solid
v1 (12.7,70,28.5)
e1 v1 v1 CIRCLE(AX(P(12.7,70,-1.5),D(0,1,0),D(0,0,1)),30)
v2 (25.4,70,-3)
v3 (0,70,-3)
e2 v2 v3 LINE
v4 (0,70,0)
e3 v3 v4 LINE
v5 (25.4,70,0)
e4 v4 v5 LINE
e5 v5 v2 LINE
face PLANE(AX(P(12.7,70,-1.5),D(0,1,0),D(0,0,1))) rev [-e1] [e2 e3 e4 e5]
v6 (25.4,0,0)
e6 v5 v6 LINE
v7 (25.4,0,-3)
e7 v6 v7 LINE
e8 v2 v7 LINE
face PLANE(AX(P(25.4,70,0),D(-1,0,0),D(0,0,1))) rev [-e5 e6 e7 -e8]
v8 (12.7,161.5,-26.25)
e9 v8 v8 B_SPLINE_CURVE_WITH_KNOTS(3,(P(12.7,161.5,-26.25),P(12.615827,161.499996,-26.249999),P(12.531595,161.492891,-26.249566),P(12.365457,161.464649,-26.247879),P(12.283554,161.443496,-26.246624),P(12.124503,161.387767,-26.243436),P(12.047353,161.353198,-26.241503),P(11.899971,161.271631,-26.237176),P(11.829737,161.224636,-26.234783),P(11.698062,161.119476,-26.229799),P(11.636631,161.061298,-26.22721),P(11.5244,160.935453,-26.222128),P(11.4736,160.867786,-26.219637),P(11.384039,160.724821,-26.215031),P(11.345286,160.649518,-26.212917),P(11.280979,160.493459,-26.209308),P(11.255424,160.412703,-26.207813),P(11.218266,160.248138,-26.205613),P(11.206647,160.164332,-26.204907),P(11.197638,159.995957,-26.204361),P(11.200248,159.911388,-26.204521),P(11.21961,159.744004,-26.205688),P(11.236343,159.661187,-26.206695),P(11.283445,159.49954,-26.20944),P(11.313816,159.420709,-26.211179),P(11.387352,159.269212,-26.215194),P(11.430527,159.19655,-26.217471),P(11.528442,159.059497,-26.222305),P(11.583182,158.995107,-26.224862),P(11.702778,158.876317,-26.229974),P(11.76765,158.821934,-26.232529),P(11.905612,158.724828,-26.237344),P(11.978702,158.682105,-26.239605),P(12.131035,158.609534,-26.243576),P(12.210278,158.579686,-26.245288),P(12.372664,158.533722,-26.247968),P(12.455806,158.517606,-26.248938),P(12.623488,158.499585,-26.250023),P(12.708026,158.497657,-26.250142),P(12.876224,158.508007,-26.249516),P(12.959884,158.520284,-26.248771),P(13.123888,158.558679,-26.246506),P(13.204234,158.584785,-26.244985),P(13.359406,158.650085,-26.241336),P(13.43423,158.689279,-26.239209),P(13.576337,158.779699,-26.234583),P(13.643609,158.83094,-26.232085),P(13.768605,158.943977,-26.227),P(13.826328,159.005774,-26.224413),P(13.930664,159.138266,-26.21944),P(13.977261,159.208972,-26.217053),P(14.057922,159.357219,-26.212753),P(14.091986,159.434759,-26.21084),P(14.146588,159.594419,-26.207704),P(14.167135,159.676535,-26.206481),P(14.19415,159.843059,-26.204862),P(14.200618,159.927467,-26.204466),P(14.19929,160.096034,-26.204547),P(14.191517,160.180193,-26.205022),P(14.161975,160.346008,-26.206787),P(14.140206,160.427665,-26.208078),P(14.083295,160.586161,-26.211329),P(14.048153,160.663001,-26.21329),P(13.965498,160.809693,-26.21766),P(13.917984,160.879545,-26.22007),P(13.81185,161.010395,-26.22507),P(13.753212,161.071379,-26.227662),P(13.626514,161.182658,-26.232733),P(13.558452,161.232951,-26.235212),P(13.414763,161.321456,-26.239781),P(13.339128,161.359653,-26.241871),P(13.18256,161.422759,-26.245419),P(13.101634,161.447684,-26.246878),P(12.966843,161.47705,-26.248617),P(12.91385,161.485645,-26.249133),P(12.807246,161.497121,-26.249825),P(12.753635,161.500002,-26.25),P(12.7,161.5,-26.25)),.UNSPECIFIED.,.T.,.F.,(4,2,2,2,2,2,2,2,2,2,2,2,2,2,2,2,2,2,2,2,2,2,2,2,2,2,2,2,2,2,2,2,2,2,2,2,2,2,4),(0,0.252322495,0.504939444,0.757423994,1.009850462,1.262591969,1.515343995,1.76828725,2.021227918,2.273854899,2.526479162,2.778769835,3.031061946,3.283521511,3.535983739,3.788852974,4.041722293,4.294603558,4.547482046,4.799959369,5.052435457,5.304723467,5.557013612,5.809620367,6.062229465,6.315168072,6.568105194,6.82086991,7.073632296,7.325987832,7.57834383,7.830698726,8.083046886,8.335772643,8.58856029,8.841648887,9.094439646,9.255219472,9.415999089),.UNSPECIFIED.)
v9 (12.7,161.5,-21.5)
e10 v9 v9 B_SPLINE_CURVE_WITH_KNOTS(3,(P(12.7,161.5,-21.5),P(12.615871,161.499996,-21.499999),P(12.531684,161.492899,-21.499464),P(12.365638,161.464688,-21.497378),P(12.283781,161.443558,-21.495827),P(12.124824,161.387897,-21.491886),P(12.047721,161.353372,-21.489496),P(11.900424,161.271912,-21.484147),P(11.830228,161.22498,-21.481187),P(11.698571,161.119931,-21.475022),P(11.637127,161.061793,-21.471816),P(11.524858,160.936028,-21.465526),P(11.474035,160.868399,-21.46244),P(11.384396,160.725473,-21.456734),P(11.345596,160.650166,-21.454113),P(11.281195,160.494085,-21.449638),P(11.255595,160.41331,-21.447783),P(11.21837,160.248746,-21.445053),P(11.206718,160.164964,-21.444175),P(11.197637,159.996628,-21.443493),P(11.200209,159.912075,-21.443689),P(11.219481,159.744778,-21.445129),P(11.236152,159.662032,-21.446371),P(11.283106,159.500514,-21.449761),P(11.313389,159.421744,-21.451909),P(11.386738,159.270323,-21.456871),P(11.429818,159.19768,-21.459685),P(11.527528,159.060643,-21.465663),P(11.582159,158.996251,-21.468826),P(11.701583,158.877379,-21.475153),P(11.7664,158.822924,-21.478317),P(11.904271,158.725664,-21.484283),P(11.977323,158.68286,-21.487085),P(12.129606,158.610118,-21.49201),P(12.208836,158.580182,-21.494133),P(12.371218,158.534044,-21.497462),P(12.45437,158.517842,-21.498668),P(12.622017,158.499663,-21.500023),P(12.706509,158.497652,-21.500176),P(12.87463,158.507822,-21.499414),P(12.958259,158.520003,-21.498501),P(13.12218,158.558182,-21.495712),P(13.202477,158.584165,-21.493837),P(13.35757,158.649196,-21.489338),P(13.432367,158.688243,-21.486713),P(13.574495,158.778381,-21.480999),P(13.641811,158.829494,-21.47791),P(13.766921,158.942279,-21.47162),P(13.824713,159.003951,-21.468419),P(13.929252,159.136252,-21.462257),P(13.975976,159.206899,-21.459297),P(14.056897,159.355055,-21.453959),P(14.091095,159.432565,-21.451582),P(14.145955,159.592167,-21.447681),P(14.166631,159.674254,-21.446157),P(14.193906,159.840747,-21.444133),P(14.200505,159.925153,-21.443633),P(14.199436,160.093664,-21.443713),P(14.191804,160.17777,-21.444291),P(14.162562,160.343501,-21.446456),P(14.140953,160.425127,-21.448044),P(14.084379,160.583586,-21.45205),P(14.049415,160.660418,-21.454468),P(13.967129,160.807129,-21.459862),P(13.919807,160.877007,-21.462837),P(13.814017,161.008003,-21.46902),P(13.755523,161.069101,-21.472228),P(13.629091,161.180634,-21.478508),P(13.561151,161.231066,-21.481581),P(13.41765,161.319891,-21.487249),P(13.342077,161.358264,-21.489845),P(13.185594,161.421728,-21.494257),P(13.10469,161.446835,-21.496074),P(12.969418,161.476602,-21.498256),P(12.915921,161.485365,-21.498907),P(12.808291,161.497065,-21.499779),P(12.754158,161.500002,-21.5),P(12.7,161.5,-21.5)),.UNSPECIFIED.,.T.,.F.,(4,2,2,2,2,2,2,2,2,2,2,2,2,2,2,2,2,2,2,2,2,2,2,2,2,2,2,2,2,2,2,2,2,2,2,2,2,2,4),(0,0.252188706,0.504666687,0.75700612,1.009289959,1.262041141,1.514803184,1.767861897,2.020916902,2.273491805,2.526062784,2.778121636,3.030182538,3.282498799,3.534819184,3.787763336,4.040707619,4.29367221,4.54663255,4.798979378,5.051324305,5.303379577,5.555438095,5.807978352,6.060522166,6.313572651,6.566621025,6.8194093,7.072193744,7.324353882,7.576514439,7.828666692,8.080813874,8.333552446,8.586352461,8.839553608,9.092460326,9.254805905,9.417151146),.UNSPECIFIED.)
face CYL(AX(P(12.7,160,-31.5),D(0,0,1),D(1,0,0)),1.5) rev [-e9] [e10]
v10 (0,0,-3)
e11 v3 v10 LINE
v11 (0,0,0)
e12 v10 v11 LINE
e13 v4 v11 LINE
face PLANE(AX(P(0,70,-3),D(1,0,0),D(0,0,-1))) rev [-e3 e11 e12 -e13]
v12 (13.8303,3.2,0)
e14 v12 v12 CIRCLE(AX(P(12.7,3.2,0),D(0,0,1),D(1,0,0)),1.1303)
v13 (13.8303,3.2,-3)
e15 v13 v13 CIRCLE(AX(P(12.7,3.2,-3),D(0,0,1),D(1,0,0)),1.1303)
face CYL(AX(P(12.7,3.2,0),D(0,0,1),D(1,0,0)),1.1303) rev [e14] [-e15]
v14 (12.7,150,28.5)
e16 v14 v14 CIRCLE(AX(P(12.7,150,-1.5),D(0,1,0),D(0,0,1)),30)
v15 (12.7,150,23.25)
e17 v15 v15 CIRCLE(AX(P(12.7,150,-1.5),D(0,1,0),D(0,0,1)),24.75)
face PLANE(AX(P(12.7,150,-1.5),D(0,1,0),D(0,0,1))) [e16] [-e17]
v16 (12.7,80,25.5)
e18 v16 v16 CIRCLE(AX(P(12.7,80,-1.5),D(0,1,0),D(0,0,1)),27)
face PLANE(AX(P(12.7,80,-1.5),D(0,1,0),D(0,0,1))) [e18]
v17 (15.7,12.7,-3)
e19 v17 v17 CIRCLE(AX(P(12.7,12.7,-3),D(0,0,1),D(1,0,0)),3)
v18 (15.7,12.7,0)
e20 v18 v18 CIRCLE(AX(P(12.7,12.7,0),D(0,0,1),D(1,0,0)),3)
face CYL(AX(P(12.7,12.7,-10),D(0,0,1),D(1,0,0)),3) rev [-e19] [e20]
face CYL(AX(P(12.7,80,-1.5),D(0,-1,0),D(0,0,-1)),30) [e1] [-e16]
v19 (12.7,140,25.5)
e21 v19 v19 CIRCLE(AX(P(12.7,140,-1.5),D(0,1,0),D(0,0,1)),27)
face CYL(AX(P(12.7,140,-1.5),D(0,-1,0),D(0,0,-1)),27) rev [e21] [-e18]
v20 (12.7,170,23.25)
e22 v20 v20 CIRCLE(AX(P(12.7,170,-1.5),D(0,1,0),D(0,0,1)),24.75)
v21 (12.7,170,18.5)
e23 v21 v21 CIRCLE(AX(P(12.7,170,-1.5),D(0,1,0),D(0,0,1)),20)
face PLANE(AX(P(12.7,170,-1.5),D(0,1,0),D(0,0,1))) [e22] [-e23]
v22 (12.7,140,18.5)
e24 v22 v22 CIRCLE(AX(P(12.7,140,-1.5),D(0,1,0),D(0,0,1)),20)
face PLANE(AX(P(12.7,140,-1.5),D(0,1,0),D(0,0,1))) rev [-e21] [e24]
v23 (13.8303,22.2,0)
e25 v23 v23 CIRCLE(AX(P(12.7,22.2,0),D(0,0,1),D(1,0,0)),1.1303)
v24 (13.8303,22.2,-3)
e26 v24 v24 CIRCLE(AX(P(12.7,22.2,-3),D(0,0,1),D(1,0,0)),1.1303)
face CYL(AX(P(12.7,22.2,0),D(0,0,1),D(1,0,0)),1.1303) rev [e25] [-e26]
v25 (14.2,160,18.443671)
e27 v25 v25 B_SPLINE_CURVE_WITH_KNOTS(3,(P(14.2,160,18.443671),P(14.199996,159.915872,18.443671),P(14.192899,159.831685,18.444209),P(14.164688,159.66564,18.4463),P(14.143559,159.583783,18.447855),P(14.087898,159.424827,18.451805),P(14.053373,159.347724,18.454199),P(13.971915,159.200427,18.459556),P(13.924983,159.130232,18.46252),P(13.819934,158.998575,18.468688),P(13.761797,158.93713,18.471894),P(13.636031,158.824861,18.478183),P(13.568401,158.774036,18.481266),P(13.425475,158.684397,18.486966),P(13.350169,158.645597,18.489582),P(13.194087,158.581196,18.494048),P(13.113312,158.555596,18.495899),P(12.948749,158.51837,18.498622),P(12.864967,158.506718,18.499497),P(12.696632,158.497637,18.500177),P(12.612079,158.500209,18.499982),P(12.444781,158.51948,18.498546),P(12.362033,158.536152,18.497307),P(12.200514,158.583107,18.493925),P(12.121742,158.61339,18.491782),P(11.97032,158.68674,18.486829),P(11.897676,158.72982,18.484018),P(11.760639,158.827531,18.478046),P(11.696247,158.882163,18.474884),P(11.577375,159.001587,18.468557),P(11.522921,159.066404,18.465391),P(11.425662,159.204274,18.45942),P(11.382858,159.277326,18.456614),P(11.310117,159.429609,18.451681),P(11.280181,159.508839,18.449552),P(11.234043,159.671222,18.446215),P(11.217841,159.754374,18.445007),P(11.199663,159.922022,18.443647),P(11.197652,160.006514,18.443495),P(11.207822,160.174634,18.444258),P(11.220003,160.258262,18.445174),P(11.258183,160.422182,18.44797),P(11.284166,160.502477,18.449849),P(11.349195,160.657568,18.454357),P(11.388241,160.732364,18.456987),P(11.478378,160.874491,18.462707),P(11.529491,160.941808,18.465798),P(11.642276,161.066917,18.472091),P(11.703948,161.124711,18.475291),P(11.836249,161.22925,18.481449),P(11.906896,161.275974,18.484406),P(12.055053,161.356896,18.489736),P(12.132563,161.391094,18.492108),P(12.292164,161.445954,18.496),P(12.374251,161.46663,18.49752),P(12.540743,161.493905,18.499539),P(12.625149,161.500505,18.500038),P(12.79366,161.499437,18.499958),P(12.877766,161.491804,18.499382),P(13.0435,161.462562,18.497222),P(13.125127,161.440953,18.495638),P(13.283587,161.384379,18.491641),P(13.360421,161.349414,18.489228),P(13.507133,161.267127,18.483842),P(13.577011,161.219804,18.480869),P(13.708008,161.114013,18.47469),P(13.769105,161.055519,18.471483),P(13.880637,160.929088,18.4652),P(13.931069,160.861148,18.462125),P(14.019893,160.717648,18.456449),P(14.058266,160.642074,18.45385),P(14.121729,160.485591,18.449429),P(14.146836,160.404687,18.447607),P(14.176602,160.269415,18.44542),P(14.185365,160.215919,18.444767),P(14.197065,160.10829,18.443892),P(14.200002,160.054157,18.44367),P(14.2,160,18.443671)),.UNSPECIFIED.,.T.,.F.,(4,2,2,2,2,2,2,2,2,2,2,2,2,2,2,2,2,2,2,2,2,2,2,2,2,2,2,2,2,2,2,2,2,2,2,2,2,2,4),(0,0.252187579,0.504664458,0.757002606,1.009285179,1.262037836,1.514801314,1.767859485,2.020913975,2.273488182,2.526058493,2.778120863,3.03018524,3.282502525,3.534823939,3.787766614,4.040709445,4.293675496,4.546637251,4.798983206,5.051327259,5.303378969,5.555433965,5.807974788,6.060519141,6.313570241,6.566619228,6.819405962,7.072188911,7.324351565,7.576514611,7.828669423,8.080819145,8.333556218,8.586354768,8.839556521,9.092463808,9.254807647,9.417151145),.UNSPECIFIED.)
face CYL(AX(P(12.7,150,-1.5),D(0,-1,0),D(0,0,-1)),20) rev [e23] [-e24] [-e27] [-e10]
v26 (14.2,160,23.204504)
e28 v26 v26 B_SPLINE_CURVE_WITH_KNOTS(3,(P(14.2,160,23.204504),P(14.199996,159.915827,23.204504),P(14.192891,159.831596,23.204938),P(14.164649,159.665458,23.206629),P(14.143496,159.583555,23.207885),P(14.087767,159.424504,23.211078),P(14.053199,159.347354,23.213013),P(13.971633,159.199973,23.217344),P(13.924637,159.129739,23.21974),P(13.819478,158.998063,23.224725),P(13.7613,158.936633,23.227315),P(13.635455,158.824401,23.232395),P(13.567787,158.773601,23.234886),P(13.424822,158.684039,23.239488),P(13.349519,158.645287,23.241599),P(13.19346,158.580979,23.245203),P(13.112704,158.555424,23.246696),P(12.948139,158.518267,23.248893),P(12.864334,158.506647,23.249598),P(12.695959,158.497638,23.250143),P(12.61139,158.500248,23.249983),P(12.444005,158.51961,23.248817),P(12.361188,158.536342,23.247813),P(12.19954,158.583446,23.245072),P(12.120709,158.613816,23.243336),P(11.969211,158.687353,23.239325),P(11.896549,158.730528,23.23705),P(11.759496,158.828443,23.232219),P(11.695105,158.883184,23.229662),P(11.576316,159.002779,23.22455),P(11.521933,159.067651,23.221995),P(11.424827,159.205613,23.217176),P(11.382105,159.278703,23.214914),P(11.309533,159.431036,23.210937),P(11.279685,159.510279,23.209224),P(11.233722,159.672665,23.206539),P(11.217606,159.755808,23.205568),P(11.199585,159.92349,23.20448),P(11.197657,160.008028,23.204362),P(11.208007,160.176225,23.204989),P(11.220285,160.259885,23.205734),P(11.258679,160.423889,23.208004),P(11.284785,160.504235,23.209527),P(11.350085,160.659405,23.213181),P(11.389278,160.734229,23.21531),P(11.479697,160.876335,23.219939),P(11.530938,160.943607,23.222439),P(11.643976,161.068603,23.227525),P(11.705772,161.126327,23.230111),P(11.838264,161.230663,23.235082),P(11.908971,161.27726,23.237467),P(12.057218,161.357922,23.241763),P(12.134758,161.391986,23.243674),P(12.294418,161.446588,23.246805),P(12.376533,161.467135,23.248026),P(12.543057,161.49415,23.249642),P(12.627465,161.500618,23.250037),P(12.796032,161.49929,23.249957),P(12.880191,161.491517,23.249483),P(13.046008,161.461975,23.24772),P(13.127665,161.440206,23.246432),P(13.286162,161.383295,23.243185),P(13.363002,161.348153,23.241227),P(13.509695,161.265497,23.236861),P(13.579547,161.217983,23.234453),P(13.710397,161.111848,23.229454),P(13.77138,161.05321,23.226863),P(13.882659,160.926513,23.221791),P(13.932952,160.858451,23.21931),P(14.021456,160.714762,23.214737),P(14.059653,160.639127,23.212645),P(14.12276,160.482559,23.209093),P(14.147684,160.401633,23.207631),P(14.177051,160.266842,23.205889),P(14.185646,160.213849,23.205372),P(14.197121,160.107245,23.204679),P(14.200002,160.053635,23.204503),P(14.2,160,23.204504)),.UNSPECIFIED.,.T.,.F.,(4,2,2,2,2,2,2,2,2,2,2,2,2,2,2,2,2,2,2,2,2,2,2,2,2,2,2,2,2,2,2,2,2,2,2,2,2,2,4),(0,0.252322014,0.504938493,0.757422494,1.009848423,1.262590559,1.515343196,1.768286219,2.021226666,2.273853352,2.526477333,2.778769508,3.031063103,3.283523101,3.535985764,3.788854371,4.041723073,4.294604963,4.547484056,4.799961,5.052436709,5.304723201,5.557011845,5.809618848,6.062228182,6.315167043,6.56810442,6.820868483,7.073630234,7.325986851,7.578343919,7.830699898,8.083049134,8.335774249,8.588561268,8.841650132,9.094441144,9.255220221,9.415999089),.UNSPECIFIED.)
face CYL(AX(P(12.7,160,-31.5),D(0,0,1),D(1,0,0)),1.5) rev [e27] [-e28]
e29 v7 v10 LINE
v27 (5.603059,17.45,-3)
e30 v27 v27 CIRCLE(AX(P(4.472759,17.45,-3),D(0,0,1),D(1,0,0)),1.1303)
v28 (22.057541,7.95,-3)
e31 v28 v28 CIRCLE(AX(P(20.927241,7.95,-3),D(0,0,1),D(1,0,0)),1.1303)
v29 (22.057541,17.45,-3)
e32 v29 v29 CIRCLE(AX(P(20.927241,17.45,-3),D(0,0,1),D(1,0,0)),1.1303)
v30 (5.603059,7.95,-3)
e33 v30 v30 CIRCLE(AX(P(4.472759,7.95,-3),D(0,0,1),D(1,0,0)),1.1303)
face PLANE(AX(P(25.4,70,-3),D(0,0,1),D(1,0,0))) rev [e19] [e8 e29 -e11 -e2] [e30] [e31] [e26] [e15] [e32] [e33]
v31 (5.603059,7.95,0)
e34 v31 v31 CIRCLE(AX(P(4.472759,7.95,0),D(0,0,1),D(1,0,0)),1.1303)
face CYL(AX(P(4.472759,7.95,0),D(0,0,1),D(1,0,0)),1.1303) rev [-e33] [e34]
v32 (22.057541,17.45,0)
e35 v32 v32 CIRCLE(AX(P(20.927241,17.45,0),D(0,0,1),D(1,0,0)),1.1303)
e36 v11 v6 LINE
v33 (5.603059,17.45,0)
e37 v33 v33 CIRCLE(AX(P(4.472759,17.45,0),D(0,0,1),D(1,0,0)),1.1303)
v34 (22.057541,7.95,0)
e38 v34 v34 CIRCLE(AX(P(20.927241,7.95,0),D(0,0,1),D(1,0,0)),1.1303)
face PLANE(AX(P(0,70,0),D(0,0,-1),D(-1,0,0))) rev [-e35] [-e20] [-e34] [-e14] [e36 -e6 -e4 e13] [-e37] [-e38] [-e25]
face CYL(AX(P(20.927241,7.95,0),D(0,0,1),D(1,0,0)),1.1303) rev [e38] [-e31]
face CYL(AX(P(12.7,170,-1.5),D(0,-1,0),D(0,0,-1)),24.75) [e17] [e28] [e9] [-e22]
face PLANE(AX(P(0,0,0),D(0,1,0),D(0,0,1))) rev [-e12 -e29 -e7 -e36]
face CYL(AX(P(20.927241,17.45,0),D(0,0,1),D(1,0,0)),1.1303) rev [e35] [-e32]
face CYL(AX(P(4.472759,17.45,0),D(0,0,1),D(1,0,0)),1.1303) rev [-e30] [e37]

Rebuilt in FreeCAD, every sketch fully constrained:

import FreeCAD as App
import Part
import Sketcher
from FreeCAD import Vector

doc = App.newDocument("Part")
body = doc.addObject("PartDesign::Body", "Body")

sketch1 = body.newObject("Sketcher::SketchObject", "Sketch")
sketch1.AttachmentSupport = (doc.getObject("XZ_Plane"), [""])
sketch1.MapMode = "FlatFace"
sketch1.addGeometry([
    Part.LineSegment(Vector(0, -3, 0), Vector(0, 0, 0)),
    Part.LineSegment(Vector(0, 0, 0), Vector(25.4, 0, 0)),
    Part.LineSegment(Vector(25.4, 0, 0), Vector(25.4, -3, 0)),
    Part.LineSegment(Vector(25.4, -3, 0), Vector(0, -3, 0)),
], False)
sketch1.addConstraint([
    Sketcher.Constraint("Coincident", 0, 2, 1, 1),
    Sketcher.Constraint("Coincident", 1, 2, 2, 1),
    Sketcher.Constraint("Coincident", 2, 2, 3, 1),
    Sketcher.Constraint("Coincident", 3, 2, 0, 1),
    Sketcher.Constraint("Vertical", 0),
    Sketcher.Constraint("Horizontal", 1),
    Sketcher.Constraint("Vertical", 2),
    Sketcher.Constraint("Horizontal", 3),
    Sketcher.Constraint("Coincident", 0, 2, -1, 1),
    Sketcher.Constraint("DistanceY", 0, 1, 0, 2, 3.0),
    Sketcher.Constraint("DistanceX", 1, 1, 1, 2, 25.4),
])
pad1 = body.newObject("PartDesign::Pad", "Pad")
pad1.Profile = sketch1
pad1.Length = 70
pad1.Reversed = True

sketch2 = body.newObject("Sketcher::SketchObject", "Sketch001")
sketch2.AttachmentSupport = (doc.getObject("XZ_Plane"), [""])
sketch2.MapMode = "FlatFace"
sketch2.AttachmentOffset = App.Placement(Vector(0, 0, -70), App.Rotation())
sketch2.addGeometry(Part.Circle(Vector(13, -2, 0), Vector(0, 0, 1), 30), False)
sketch2.addConstraint([
    Sketcher.Constraint("Diameter", 0, 60.0),
    Sketcher.Constraint("DistanceX", -1, 1, 0, 3, 12.7),
    Sketcher.Constraint("DistanceY", 0, 3, -1, 1, 1.5),
])
pad2 = body.newObject("PartDesign::Pad", "Pad001")
pad2.Profile = sketch2
pad2.Length = 10
pad2.Reversed = True

sketch3 = body.newObject("Sketcher::SketchObject", "Sketch002")
sketch3.AttachmentSupport = (doc.getObject("XZ_Plane"), [""])
sketch3.MapMode = "FlatFace"
sketch3.AttachmentOffset = App.Placement(Vector(0, 0, -80), App.Rotation())
sketch3.addGeometry([
    Part.Circle(Vector(13, -2, 0), Vector(0, 0, 1), 30),
    Part.Circle(Vector(13, -2, 0), Vector(0, 0, 1), 20),
], False)
sketch3.addConstraint([
    Sketcher.Constraint("Coincident", 1, 3, 0, 3),
    Sketcher.Constraint("Diameter", 0, 60.0),
    Sketcher.Constraint("Diameter", 1, 40.0),
    Sketcher.Constraint("DistanceX", -1, 1, 0, 3, 12.7),
    Sketcher.Constraint("DistanceY", 0, 3, -1, 1, 1.5),
])
pad3 = body.newObject("PartDesign::Pad", "Pad002")
pad3.Profile = sketch3
pad3.Length = 70
pad3.Reversed = True

sketch4 = body.newObject("Sketcher::SketchObject", "Sketch003")
sketch4.AttachmentSupport = (doc.getObject("XZ_Plane"), [""])
sketch4.MapMode = "FlatFace"
sketch4.AttachmentOffset = App.Placement(Vector(0, 0, -150), App.Rotation())
sketch4.addGeometry([
    Part.Circle(Vector(13, -2, 0), Vector(0, 0, 1), 25),
    Part.Circle(Vector(13, -2, 0), Vector(0, 0, 1), 20),
], False)
sketch4.addConstraint([
    Sketcher.Constraint("Coincident", 1, 3, 0, 3),
    Sketcher.Constraint("Diameter", 1, 40.0),
    Sketcher.Constraint("Diameter", 0, 49.5),
    Sketcher.Constraint("DistanceX", -1, 1, 0, 3, 12.7),
    Sketcher.Constraint("DistanceY", 0, 3, -1, 1, 1.5),
])
pad4 = body.newObject("PartDesign::Pad", "Pad003")
pad4.Profile = sketch4
pad4.Length = 20
pad4.Reversed = True

sketch5 = body.newObject("Sketcher::SketchObject", "Sketch004")
sketch5.AttachmentSupport = (doc.getObject("XY_Plane"), [""])
sketch5.MapMode = "FlatFace"
sketch5.addGeometry(Part.Circle(Vector(12.7, 160, 0), Vector(0, 0, 1), 1.5), False)
sketch5.addConstraint([
    Sketcher.Constraint("Diameter", 0, 3.0),
    Sketcher.Constraint("DistanceY", -1, 1, 0, 3, 160.0),
    Sketcher.Constraint("DistanceX", -1, 1, 0, 3, 12.7),
])
pocket1 = body.newObject("PartDesign::Pocket", "Pocket")
pocket1.Profile = sketch5
pocket1.Type = "ThroughAll"
pocket1.Midplane = True

sketch6 = body.newObject("Sketcher::SketchObject", "Sketch005")
sketch6.AttachmentSupport = (doc.getObject("XY_Plane"), [""])
sketch6.MapMode = "FlatFace"
sketch6.addGeometry([
    Part.Circle(Vector(12.7, 22.2, 0), Vector(0, 0, 1), 1.1),
    Part.Circle(Vector(20.9, 17.4, 0), Vector(0, 0, 1), 1.1),
    Part.Circle(Vector(20.9, 8, 0), Vector(0, 0, 1), 1.1),
    Part.Circle(Vector(12.7, 3.2, 0), Vector(0, 0, 1), 1.1),
    Part.Circle(Vector(4.5, 8, 0), Vector(0, 0, 1), 1.1),
    Part.Circle(Vector(4.5, 17.4, 0), Vector(0, 0, 1), 1.1),
], False)
sketch6.addConstraint([
    Sketcher.Constraint("Equal", 0, 1),
    Sketcher.Constraint("Equal", 1, 2),
    Sketcher.Constraint("Equal", 2, 3),
    Sketcher.Constraint("Equal", 3, 4),
    Sketcher.Constraint("Equal", 4, 5),
    Sketcher.Constraint("Horizontal", 2, 3, 4, 3),
    Sketcher.Constraint("Horizontal", 1, 3, 5, 3),
    Sketcher.Constraint("Vertical", 1, 3, 2, 3),
    Sketcher.Constraint("Vertical", 0, 3, 3, 3),
    Sketcher.Constraint("Vertical", 4, 3, 5, 3),
    Sketcher.Constraint("DistanceY", 3, 3, 0, 3, 19.0),
    Sketcher.Constraint("Diameter", 0, 2.2606),
    Sketcher.Constraint("DistanceX", -1, 1, 0, 3, 12.7),
    Sketcher.Constraint("DistanceY", -1, 1, 0, 3, 22.2),
    Sketcher.Constraint("DistanceY", 2, 3, 1, 3, 9.5),
    Sketcher.Constraint("DistanceY", -1, 1, 1, 3, 17.45),
    Sketcher.Constraint("DistanceX", -1, 1, 1, 3, 20.927241),
    Sketcher.Constraint("DistanceX", -1, 1, 4, 3, 4.472759),
])
doc.recompute()
hole = body.newObject("PartDesign::Hole", "Hole")
hole.Profile = sketch6
hole.ThreadType = "None"
hole.Diameter = 2.2606
hole.DepthType = "Dimension"
hole.Depth = 7.6
hole.DrillPoint = "Angled"
hole.DrillPointAngle = 118

sketch7 = body.newObject("Sketcher::SketchObject", "Sketch006")
sketch7.AttachmentSupport = (doc.getObject("XY_Plane"), [""])
sketch7.MapMode = "FlatFace"
sketch7.addGeometry(Part.Circle(Vector(12.7, 12.7, 0), Vector(0, 0, 1), 3), False)
sketch7.addConstraint([
    Sketcher.Constraint("Diameter", 0, 6.0),
    Sketcher.Constraint("DistanceX", -1, 1, 0, 3, 12.7),
    Sketcher.Constraint("DistanceY", -1, 1, 0, 3, 12.7),
])
pocket2 = body.newObject("PartDesign::Pocket", "Pocket001")
pocket2.Profile = sketch7
pocket2.Length = 10

sketch8 = body.newObject("Sketcher::SketchObject", "Sketch007")
sketch8.AttachmentSupport = (doc.getObject("XZ_Plane"), [""])
sketch8.MapMode = "FlatFace"
sketch8.AttachmentOffset = App.Placement(Vector(0, 0, -80), App.Rotation())
sketch8.addGeometry([
    Part.Circle(Vector(13, -2, 0), Vector(0, 0, 1), 27),
    Part.Circle(Vector(13, -2, 0), Vector(0, 0, 1), 20),
], False)
sketch8.addConstraint([
    Sketcher.Constraint("Coincident", 1, 3, 0, 3),
    Sketcher.Constraint("Diameter", 0, 54.0),
    Sketcher.Constraint("Diameter", 1, 40.0),
    Sketcher.Constraint("DistanceX", -1, 1, 0, 3, 12.7),
    Sketcher.Constraint("DistanceY", 0, 3, -1, 1, 1.5),
])
pocket3 = body.newObject("PartDesign::Pocket", "Pocket002")
pocket3.Profile = sketch8
pocket3.Length = 60

doc.recompute()
